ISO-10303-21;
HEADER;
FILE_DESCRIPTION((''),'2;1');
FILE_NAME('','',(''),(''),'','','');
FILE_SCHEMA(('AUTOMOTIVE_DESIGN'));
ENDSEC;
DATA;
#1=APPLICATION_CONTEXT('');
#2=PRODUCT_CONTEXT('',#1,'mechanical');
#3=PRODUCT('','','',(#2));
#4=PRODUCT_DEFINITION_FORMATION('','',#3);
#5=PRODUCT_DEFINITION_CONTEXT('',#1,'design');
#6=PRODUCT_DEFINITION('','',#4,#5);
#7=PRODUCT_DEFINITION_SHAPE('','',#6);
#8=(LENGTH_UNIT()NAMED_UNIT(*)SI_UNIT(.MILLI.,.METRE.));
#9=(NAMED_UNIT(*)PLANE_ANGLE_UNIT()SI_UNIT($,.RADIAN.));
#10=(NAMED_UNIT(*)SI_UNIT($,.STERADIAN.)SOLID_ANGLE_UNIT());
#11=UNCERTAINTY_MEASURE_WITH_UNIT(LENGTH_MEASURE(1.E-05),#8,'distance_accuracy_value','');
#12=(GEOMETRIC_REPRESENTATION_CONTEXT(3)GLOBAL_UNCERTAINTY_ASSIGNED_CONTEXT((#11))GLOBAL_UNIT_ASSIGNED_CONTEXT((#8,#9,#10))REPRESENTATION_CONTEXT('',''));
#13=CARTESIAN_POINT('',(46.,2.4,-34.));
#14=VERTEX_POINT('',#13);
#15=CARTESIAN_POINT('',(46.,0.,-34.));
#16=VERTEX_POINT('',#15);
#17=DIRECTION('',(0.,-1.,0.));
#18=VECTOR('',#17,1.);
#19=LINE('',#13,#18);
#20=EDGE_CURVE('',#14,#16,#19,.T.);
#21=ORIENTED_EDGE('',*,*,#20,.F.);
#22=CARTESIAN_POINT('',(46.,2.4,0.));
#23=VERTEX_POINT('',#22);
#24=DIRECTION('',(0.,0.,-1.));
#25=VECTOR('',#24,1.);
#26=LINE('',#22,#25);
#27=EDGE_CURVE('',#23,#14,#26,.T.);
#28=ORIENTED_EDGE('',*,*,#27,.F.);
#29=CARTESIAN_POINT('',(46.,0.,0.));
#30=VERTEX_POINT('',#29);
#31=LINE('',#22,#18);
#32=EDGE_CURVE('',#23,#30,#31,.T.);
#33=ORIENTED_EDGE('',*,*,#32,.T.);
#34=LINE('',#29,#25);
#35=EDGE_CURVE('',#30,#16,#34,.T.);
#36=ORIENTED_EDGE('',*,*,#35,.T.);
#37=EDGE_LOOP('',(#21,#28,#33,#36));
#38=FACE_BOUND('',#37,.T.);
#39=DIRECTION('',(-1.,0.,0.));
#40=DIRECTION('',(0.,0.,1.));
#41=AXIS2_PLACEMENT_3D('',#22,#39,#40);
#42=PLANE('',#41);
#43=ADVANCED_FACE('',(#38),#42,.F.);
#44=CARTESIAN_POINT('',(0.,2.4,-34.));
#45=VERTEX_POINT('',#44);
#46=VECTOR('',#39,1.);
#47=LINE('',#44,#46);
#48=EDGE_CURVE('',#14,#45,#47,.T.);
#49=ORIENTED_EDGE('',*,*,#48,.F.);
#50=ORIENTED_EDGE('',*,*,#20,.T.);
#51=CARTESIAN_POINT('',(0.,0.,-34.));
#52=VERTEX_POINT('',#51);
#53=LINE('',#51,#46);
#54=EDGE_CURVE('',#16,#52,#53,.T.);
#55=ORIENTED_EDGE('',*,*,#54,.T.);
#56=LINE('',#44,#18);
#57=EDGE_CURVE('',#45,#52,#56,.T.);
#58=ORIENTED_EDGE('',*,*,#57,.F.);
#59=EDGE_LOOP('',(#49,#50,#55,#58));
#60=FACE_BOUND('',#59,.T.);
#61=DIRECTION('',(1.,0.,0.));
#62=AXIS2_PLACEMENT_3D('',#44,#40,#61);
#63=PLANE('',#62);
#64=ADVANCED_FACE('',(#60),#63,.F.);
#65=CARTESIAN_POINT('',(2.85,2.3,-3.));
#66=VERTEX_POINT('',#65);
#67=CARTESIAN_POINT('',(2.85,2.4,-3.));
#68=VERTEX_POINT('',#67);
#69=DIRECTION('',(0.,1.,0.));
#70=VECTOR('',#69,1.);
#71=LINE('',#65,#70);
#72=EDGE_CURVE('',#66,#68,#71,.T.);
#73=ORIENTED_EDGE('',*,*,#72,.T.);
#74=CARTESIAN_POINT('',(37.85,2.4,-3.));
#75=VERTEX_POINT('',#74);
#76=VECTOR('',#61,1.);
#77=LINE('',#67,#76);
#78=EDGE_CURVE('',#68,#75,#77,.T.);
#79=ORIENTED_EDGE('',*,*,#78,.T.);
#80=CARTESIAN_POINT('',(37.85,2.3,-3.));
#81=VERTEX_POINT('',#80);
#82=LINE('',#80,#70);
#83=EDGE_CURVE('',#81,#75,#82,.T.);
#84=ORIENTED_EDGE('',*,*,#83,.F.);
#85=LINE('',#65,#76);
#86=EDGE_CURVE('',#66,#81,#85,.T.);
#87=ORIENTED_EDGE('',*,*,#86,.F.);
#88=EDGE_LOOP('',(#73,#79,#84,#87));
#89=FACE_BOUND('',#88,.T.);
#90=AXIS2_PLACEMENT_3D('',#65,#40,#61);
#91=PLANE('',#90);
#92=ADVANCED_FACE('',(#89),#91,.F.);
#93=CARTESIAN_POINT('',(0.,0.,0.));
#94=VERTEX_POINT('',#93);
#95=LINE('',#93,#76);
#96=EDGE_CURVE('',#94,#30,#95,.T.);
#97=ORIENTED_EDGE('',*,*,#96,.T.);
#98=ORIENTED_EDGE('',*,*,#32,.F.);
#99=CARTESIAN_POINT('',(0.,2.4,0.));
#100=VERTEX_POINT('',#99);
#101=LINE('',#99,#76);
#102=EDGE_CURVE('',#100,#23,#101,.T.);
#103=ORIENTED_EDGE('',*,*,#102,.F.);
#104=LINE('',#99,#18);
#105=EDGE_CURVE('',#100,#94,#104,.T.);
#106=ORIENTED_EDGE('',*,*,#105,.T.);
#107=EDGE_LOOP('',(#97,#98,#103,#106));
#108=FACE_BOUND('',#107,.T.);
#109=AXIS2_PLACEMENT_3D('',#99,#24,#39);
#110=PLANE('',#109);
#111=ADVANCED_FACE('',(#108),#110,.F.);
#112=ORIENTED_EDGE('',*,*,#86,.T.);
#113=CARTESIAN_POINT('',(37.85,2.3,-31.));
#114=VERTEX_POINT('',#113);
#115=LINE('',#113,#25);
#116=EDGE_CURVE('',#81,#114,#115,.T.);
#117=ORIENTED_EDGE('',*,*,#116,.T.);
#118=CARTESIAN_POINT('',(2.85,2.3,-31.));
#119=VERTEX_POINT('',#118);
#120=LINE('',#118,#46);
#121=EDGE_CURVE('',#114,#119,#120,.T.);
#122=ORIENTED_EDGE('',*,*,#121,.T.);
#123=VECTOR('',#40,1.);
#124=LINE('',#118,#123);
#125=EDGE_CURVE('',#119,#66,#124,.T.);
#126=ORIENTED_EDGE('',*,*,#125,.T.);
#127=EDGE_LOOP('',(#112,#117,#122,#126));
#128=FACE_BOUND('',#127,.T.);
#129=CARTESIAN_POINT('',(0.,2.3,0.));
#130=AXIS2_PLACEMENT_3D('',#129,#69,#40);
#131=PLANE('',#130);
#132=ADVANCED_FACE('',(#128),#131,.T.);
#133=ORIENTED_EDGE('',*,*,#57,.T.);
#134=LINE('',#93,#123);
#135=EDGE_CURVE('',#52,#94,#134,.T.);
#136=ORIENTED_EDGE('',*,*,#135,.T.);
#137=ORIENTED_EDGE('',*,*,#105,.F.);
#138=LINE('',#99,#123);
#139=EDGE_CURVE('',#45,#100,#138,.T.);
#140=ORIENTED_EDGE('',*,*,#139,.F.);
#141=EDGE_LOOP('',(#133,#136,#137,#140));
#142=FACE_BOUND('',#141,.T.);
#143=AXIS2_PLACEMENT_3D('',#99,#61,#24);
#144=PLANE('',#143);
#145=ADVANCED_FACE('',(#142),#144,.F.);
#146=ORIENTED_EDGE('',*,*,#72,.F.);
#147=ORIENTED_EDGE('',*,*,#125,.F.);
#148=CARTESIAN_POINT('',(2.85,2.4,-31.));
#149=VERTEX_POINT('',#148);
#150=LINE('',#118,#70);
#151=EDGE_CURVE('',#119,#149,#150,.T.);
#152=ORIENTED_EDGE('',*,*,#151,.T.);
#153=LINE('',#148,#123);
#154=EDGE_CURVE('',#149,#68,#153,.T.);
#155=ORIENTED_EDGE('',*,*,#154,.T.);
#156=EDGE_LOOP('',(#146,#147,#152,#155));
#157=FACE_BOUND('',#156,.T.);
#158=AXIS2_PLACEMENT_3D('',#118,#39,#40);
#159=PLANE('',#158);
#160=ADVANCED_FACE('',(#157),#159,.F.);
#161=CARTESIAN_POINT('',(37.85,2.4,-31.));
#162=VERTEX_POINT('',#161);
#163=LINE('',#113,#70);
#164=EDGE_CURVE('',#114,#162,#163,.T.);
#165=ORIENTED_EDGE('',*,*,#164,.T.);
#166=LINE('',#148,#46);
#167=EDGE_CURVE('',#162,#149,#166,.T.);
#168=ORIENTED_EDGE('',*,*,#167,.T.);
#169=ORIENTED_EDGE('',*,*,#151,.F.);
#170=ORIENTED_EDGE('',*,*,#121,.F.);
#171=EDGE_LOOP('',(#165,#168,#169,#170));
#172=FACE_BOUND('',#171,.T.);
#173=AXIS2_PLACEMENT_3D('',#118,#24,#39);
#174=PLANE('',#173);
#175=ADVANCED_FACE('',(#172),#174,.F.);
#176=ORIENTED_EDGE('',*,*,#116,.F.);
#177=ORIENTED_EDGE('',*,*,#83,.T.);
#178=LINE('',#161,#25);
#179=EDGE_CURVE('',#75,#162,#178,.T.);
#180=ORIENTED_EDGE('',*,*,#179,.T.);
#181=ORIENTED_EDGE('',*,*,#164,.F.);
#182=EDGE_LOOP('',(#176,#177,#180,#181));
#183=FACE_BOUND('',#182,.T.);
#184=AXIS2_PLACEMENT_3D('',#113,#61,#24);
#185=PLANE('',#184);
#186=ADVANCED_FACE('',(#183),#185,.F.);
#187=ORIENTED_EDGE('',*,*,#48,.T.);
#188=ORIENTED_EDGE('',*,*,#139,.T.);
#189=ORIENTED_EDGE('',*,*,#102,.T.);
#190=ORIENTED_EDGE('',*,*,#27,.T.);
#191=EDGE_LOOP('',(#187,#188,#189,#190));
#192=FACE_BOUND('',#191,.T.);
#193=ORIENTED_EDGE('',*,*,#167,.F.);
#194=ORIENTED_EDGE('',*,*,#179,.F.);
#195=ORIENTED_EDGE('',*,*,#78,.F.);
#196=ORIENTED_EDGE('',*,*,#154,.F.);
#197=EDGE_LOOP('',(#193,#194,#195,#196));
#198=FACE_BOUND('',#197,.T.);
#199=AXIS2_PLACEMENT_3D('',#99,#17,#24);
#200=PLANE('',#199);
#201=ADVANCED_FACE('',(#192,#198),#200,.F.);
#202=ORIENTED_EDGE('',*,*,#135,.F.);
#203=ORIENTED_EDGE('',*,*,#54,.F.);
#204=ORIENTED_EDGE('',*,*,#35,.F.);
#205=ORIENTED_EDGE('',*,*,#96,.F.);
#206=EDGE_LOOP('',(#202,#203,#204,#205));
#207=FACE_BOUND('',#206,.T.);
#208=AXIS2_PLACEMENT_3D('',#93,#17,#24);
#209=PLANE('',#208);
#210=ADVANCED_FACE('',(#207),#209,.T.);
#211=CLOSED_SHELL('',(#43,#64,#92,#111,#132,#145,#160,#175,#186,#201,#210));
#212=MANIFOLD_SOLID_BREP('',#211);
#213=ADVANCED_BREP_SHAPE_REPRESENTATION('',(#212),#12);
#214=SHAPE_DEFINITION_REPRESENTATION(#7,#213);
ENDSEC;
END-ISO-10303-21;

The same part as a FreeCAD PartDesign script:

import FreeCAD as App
import Part
import Sketcher

doc = App.newDocument("Part")
body = doc.addObject("PartDesign::Body", "Body")

sketch1 = doc.addObject("Sketcher::SketchObject", "Sketch")
body.addObject(sketch1)
sketch1.AttachmentSupport = (doc.XZ_Plane, [""])
sketch1.MapMode = "FlatFace"
sketch1.addGeometry([
    Part.LineSegment(App.Vector(0, -34, 0), App.Vector(0, 0, 0)),
    Part.LineSegment(App.Vector(0, 0, 0), App.Vector(46, 0, 0)),
    Part.LineSegment(App.Vector(46, 0, 0), App.Vector(46, -34, 0)),
    Part.LineSegment(App.Vector(46, -34, 0), App.Vector(0, -34, 0)),
], False)
sketch1.addConstraint([
    Sketcher.Constraint("Coincident", 0, 2, 1, 1),
    Sketcher.Constraint("Coincident", 1, 2, 2, 1),
    Sketcher.Constraint("Coincident", 2, 2, 3, 1),
    Sketcher.Constraint("Coincident", 3, 2, 0, 1),
    Sketcher.Constraint("Vertical", 0),
    Sketcher.Constraint("Horizontal", 1),
    Sketcher.Constraint("Vertical", 2),
    Sketcher.Constraint("Horizontal", 3),
    Sketcher.Constraint("Coincident", 0, 2, -1, 1),
    Sketcher.Constraint("DistanceX", 1, 1, 1, 2, 46.0),
    Sketcher.Constraint("DistanceY", 0, 1, 0, 2, 34.0),
])
pad1 = doc.addObject("PartDesign::Pad", "Pad")
body.addObject(pad1)
pad1.Profile = sketch1
pad1.Length = 2.4
pad1.Reversed = True

sketch2 = doc.addObject("Sketcher::SketchObject", "Sketch001")
body.addObject(sketch2)
sketch2.AttachmentSupport = (doc.XZ_Plane, [""])
sketch2.MapMode = "FlatFace"
sketch2.AttachmentOffset = App.Placement(App.Vector(0, 0, -2.4), App.Rotation())
sketch2.addGeometry([
    Part.LineSegment(App.Vector(3, -31, 0), App.Vector(3, -3, 0)),
    Part.LineSegment(App.Vector(3, -3, 0), App.Vector(38, -3, 0)),
    Part.LineSegment(App.Vector(38, -3, 0), App.Vector(38, -31, 0)),
    Part.LineSegment(App.Vector(38, -31, 0), App.Vector(3, -31, 0)),
], False)
sketch2.addConstraint([
    Sketcher.Constraint("Coincident", 0, 2, 1, 1),
    Sketcher.Constraint("Coincident", 1, 2, 2, 1),
    Sketcher.Constraint("Coincident", 2, 2, 3, 1),
    Sketcher.Constraint("Coincident", 3, 2, 0, 1),
    Sketcher.Constraint("Vertical", 0),
    Sketcher.Constraint("Horizontal", 1),
    Sketcher.Constraint("Vertical", 2),
    Sketcher.Constraint("Horizontal", 3),
    Sketcher.Constraint("DistanceX", 1, 1, 1, 2, 35.0),
    Sketcher.Constraint("DistanceY", 0, 1, 0, 2, 28.0),
    Sketcher.Constraint("DistanceY", 0, 2, -1, 1, 3.0),
    Sketcher.Constraint("DistanceX", -1, 1, 0, 2, 2.85),
])
pocket1 = doc.addObject("PartDesign::Pocket", "Pocket")
body.addObject(pocket1)
pocket1.Profile = sketch2
pocket1.Length = 0.1
pocket1.Reversed = True

doc.recompute()
